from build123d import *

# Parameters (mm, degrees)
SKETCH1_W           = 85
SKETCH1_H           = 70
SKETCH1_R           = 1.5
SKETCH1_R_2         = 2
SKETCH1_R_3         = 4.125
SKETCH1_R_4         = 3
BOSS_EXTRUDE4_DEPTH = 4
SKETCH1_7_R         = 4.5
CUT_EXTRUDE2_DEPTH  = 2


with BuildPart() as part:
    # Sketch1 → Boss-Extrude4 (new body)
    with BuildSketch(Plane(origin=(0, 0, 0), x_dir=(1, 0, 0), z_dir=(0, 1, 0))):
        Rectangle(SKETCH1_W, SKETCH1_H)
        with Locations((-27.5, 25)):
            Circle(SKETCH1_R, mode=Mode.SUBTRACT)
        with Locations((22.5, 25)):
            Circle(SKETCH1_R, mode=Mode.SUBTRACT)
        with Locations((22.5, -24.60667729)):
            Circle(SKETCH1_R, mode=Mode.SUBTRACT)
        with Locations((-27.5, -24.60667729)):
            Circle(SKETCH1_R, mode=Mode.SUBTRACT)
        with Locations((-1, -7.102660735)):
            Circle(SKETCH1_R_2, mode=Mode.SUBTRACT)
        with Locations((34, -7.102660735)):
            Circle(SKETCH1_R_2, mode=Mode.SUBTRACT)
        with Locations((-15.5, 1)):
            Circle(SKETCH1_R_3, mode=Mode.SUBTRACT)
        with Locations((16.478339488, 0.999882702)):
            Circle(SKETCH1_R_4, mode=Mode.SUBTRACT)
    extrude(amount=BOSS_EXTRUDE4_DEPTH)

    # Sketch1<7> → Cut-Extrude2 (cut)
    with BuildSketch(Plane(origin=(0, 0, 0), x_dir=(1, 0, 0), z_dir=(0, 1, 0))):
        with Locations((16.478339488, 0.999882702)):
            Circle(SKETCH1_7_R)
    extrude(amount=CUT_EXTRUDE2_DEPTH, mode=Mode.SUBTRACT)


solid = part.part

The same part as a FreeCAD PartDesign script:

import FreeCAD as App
import Part
import Sketcher
from FreeCAD import Vector
Q = App.Units.Quantity

doc = App.newDocument("Part")
params = doc.addObject("Spreadsheet::Sheet", "Params")
for row, (alias, value) in enumerate([
    ("sketch1_diameter", "3 mm"),
    ("sketch1_diameter2", "4 mm"),
    ("sketch1_diameter3", "6 mm"),
    ("sketch1_diameter4", "8.25 mm"),
    ("sketch1_width", "85 mm"),
    ("pad1_length", "4 mm"),
    ("sketch2_diameter", "9 mm"),
    ("pocket1_length", "2 mm"),
], start=1):
    params.set(f"A{row}", alias)
    params.set(f"B{row}", "=" + value)
    params.setAlias(f"B{row}", alias)

body = doc.addObject("PartDesign::Body", "Body")

sketch1 = body.newObject("Sketcher::SketchObject", "Sketch")
sketch1.AttachmentSupport = (doc.getObject("XZ_Plane"), [""])
sketch1.MapMode = "FlatFace"
sketch1.addGeometry(Part.LineSegment(Vector(-42.5, -35, 0), Vector(-42.5, 35, 0)), False)
sketch1.addGeometry(Part.LineSegment(Vector(-42.5, 35, 0), Vector(42.5, 35, 0)), False)
sketch1.addGeometry(Part.LineSegment(Vector(42.5, 35, 0), Vector(42.5, -35, 0)), False)
sketch1.addGeometry(Part.LineSegment(Vector(42.5, -35, 0), Vector(-42.5, -35, 0)), False)
sketch1.addGeometry(Part.Circle(Vector(-27.5, 24.6, 0), Vector(0, 0, 1), 1.5), False)
sketch1.addGeometry(Part.Circle(Vector(-1, 7.1, 0), Vector(0, 0, 1), 2), False)
sketch1.addGeometry(Part.Circle(Vector(22.5, 24.6, 0), Vector(0, 0, 1), 1.5), False)
sketch1.addGeometry(Part.Circle(Vector(34, 7.1, 0), Vector(0, 0, 1), 2), False)
sketch1.addGeometry(Part.Circle(Vector(-15.5, -1, 0), Vector(0, 0, 1), 4.1), False)
sketch1.addGeometry(Part.Circle(Vector(-27.5, -25, 0), Vector(0, 0, 1), 1.5), False)
sketch1.addGeometry(Part.Circle(Vector(16.5, -1, 0), Vector(0, 0, 1), 3), False)
sketch1.addGeometry(Part.Circle(Vector(22.5, -25, 0), Vector(0, 0, 1), 1.5), False)
sketch1.addConstraint(Sketcher.Constraint("Coincident", 0, 2, 1, 1))
sketch1.addConstraint(Sketcher.Constraint("Coincident", 1, 2, 2, 1))
sketch1.addConstraint(Sketcher.Constraint("Coincident", 2, 2, 3, 1))
sketch1.addConstraint(Sketcher.Constraint("Coincident", 3, 2, 0, 1))
sketch1.addConstraint(Sketcher.Constraint("Vertical", 0))
sketch1.addConstraint(Sketcher.Constraint("Horizontal", 1))
sketch1.addConstraint(Sketcher.Constraint("Vertical", 2))
sketch1.addConstraint(Sketcher.Constraint("Horizontal", 3))
sketch1.addConstraint(Sketcher.Constraint("Equal", 4, 6))
sketch1.addConstraint(Sketcher.Constraint("Equal", 5, 7))
sketch1.addConstraint(Sketcher.Constraint("Equal", 6, 9))
sketch1.addConstraint(Sketcher.Constraint("Equal", 9, 11))
sketch1.addConstraint(Sketcher.Constraint("Symmetric", 0, 2, 2, 2, -1, 1))
sketch1.addConstraint(Sketcher.Constraint("Horizontal", 4, 3, 6, 3))
sketch1.addConstraint(Sketcher.Constraint("Horizontal", 5, 3, 7, 3))
sketch1.addConstraint(Sketcher.Constraint("Horizontal", 9, 3, 11, 3))
sketch1.addConstraint(Sketcher.Constraint("Vertical", 4, 3, 9, 3))
sketch1.addConstraint(Sketcher.Constraint("Vertical", 6, 3, 11, 3))
sketch1.addConstraint(Sketcher.Constraint("Diameter", 4, Q("3 mm")))
sketch1.addConstraint(Sketcher.Constraint("Diameter", 5, Q("4 mm")))
sketch1.addConstraint(Sketcher.Constraint("Diameter", 10, Q("6 mm")))
sketch1.addConstraint(Sketcher.Constraint("Diameter", 8, Q("8.25 mm")))
sketch1.addConstraint(Sketcher.Constraint("DistanceX", 1, 1, 1, 2, Q("85 mm")))
sketch1.addConstraint(Sketcher.Constraint("DistanceY", 0, 1, 0, 2, Q("70 mm")))
sketch1.addConstraint(Sketcher.Constraint("DistanceX", 5, 3, -1, 1, Q("1 mm")))
sketch1.addConstraint(Sketcher.Constraint("DistanceX", -1, 1, 7, 3, Q("34 mm")))
sketch1.addConstraint(Sketcher.Constraint("DistanceY", 8, 3, -1, 1, Q("1 mm")))
sketch1.addConstraint(Sketcher.Constraint("DistanceY", 9, 3, -1, 1, Q("25 mm")))
sketch1.addConstraint(Sketcher.Constraint("DistanceX", 4, 3, 6, 3, Q("50 mm")))
sketch1.addConstraint(Sketcher.Constraint("DistanceX", 4, 3, 8, 3, Q("12 mm")))
sketch1.addConstraint(Sketcher.Constraint("DistanceX", 0, 2, 4, 3, Q("15 mm")))
sketch1.addConstraint(Sketcher.Constraint("DistanceY", -1, 1, 5, 3, Q("7.102661 mm")))
sketch1.addConstraint(Sketcher.Constraint("DistanceX", -1, 1, 10, 3, Q("16.478339 mm")))
sketch1.addConstraint(Sketcher.Constraint("DistanceY", 10, 3, 6, 3, Q("25.60656 mm")))
sketch1.addConstraint(Sketcher.Constraint("DistanceY", -1, 1, 4, 3, Q("24.606677 mm")))
sketch1.setExpression("Constraints[18]", "Params.sketch1_diameter")
sketch1.setExpression("Constraints[19]", "Params.sketch1_diameter2")
sketch1.setExpression("Constraints[20]", "Params.sketch1_diameter3")
sketch1.setExpression("Constraints[21]", "Params.sketch1_diameter4")
sketch1.setExpression("Constraints[22]", "Params.sketch1_width")
pad1 = body.newObject("PartDesign::Pad", "Pad")
pad1.Profile = sketch1
pad1.setExpression("Length", "Params.pad1_length")
pad1.Reversed = True

sketch2 = body.newObject("Sketcher::SketchObject", "Sketch001")
sketch2.AttachmentSupport = (doc.getObject("XZ_Plane"), [""])
sketch2.MapMode = "FlatFace"
sketch2.addGeometry(Part.Circle(Vector(16.5, -1, 0), Vector(0, 0, 1), 4.5), False)
sketch2.addConstraint(Sketcher.Constraint("Diameter", 0, Q("9 mm")))
sketch2.addConstraint(Sketcher.Constraint("DistanceX", -1, 1, 0, 3, Q("16.478339 mm")))
sketch2.addConstraint(Sketcher.Constraint("DistanceY", 0, 3, -1, 1, Q("0.999883 mm")))
sketch2.setExpression("Constraints[0]", "Params.sketch2_diameter")
pocket1 = body.newObject("PartDesign::Pocket", "Pocket")
pocket1.Profile = sketch2
pocket1.setExpression("Length", "Params.pocket1_length")

doc.recompute()
